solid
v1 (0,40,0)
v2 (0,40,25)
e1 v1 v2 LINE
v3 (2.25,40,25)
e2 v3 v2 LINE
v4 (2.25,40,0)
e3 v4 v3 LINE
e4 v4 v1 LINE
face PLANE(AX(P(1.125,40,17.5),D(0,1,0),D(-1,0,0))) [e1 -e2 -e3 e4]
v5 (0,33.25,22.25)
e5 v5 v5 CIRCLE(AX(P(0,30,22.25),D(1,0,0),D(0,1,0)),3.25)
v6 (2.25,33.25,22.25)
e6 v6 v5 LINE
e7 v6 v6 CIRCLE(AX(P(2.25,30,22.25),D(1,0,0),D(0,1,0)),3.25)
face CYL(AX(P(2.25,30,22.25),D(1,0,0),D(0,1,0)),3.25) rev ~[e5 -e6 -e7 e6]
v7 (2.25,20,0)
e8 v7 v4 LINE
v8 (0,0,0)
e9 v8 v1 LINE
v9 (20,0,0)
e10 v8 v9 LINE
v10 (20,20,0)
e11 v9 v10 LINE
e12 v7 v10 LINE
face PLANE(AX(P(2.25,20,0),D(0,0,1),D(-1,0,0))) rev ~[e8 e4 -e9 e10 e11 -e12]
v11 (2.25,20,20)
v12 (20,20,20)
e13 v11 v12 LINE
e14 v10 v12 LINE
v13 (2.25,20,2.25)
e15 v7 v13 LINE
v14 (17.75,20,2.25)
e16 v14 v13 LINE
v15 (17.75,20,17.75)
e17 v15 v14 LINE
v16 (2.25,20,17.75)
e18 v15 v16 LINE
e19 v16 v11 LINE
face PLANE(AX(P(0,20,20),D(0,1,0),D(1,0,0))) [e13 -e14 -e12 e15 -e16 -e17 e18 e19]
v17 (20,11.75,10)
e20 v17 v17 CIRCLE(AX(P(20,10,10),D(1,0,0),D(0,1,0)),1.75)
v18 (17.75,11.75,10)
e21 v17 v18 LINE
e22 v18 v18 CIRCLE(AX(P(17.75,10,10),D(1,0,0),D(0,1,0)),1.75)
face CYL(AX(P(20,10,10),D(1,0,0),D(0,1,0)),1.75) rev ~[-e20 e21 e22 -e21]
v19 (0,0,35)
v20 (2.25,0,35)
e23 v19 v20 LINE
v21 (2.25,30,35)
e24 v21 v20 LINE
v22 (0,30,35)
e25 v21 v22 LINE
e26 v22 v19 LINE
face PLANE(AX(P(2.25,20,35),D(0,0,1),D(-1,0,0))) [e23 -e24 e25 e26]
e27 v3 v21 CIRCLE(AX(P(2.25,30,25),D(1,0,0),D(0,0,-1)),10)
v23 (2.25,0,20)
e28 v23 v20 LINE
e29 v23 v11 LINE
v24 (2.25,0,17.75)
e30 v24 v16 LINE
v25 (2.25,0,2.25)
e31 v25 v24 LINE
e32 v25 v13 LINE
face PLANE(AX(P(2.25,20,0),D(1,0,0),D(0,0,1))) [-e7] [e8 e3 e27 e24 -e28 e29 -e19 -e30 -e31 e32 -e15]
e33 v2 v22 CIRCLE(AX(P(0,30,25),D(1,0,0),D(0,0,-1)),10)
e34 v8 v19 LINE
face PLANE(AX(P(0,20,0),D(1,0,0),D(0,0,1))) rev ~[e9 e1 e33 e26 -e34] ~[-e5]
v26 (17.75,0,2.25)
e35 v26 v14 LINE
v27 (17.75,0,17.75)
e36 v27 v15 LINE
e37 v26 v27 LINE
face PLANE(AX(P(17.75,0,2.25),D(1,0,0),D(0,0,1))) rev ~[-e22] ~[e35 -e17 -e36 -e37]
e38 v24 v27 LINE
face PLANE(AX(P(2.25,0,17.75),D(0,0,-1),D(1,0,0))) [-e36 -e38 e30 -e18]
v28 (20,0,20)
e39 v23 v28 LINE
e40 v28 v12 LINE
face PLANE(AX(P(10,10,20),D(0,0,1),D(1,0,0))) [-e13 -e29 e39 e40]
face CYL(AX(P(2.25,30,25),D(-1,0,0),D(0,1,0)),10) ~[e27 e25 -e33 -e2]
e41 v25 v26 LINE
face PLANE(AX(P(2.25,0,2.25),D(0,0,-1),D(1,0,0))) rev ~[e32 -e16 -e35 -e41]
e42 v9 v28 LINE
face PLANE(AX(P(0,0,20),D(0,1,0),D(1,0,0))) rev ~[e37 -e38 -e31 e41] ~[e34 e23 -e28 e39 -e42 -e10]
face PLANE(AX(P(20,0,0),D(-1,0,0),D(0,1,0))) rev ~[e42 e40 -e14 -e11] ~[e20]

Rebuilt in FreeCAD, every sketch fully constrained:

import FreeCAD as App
import Part
import Sketcher

V = App.Vector
Q = App.Units.Quantity


def edges_at(feature, points):
    """Names of the edges that pass closest to the given points."""
    edges = feature.Shape.Edges
    near = lambda p: min(range(len(edges)), key=lambda i: edges[i].distToShape(Part.Vertex(*p))[0])
    return sorted({f"Edge{near(p) + 1}" for p in points})


def add_polygon(sketch, points):
    """Adds a closed chain of lines whose ends are joined by coincident constraints."""
    first, n = sketch.GeometryCount, len(points)
    for a, b in zip(points, points[1:] + points[:1]):
        sketch.addGeometry(Part.LineSegment(App.Vector(*a, 0), App.Vector(*b, 0)), False)
    for i in range(n):
        sketch.addConstraint(Sketcher.Constraint("Coincident", first + i, 2, first + (i + 1) % n, 1))

doc = App.newDocument("Part")
body = doc.addObject("PartDesign::Body", "Body")

sketch1 = body.newObject("Sketcher::SketchObject", "Sketch")
sketch1.AttachmentSupport = (doc.getObject("XY_Plane"), [""])
sketch1.MapMode = "FlatFace"
add_polygon(sketch1, [(0, 20), (0, 0), (20, 0), (20, 20)])
sketch1.addConstraint([
    Sketcher.Constraint("Vertical", 0),
    Sketcher.Constraint("Horizontal", 1),
    Sketcher.Constraint("Vertical", 2),
    Sketcher.Constraint("Horizontal", 3),
    Sketcher.Constraint("Coincident", 0, 2, -1, 1),
    Sketcher.Constraint("Equal", 3, 0),
    Sketcher.Constraint("DistanceX", 1, 1, 1, 2, Q("20 mm")),
])
pad1 = body.newObject("PartDesign::Pad", "Pad")
pad1.Profile = sketch1
pad1.Length = 20

sketch2 = body.newObject("Sketcher::SketchObject", "Sketch001")
sketch2.AttachmentSupport = (doc.getObject("XZ_Plane"), [""])
sketch2.MapMode = "FlatFace"
add_polygon(sketch2, [(2.25, 17.75), (2.25, 2.25), (17.75, 2.25), (17.75, 17.75)])
sketch2.addConstraint([
    Sketcher.Constraint("Vertical", 0),
    Sketcher.Constraint("Horizontal", 1),
    Sketcher.Constraint("Vertical", 2),
    Sketcher.Constraint("Horizontal", 3),
    Sketcher.Constraint("Equal", 3, 0),
    Sketcher.Constraint("DistanceX", 1, 1, 1, 2, Q("15.5 mm")),
    Sketcher.Constraint("DistanceX", -1, 1, 0, 2, Q("2.25 mm")),
    Sketcher.Constraint("DistanceY", -1, 1, 0, 2, Q("2.25 mm")),
])
pocket1 = body.newObject("PartDesign::Pocket", "Pocket")
pocket1.Profile = sketch2
pocket1.Type = "ThroughAll"
pocket1.Midplane = True

sketch3 = body.newObject("Sketcher::SketchObject", "Sketch002")
sketch3.AttachmentSupport = (doc.getObject("XY_Plane"), [""])
sketch3.MapMode = "FlatFace"
sketch3.AttachmentOffset = App.Placement(V(0, 0, 20), App.Rotation())
add_polygon(sketch3, [(0, 20), (0, 0), (2.25, 0), (2.25, 20)])
sketch3.addConstraint([
    Sketcher.Constraint("Vertical", 0),
    Sketcher.Constraint("Horizontal", 1),
    Sketcher.Constraint("Vertical", 2),
    Sketcher.Constraint("Horizontal", 3),
    Sketcher.Constraint("Coincident", 0, 2, -1, 1),
    Sketcher.Constraint("DistanceY", 0, 2, 0, 1, Q("20 mm")),
    Sketcher.Constraint("DistanceX", 1, 1, 1, 2, Q("2.25 mm")),
])
pad2 = body.newObject("PartDesign::Pad", "Pad001")
pad2.Profile = sketch3
pad2.Length = 15

sketch4 = body.newObject("Sketcher::SketchObject", "Sketch003")
sketch4.AttachmentSupport = (doc.getObject("XZ_Plane"), [""])
sketch4.MapMode = "FlatFace"
sketch4.AttachmentOffset = App.Placement(V(0, 0, -20), App.Rotation())
add_polygon(sketch4, [(2.25, 35), (2.25, 0), (0, 0), (0, 35)])
sketch4.addConstraint([
    Sketcher.Constraint("Vertical", 0),
    Sketcher.Constraint("Horizontal", 1),
    Sketcher.Constraint("Vertical", 2),
    Sketcher.Constraint("Horizontal", 3),
    Sketcher.Constraint("Coincident", 1, 2, -1, 1),
    Sketcher.Constraint("DistanceY", 0, 2, 0, 1, Q("35 mm")),
    Sketcher.Constraint("DistanceX", 1, 2, 1, 1, Q("2.25 mm")),
])
pad3 = body.newObject("PartDesign::Pad", "Pad002")
pad3.Profile = sketch4
pad3.Length = 20
pad3.Reversed = True

sketch5 = body.newObject("Sketcher::SketchObject", "Sketch004")
sketch5.AttachmentSupport = (doc.getObject("YZ_Plane"), [""])
sketch5.MapMode = "FlatFace"
sketch5.AttachmentOffset = App.Placement(V(0, 0, 2.25), App.Rotation())
sketch5.addGeometry(Part.Circle(V(30, 22.25, 0), V(0, 0, 1), 3.25), False)
sketch5.addConstraint([
    Sketcher.Constraint("Diameter", 0, Q("6.5 mm")),
    Sketcher.Constraint("DistanceX", -1, 1, 0, 3, Q("30 mm")),
    Sketcher.Constraint("DistanceY", -1, 1, 0, 3, Q("22.25 mm")),
])
pocket2 = body.newObject("PartDesign::Pocket", "Pocket001")
pocket2.Profile = sketch5
pocket2.Length = 25
pocket3 = body.newObject("PartDesign::Pocket", "Pocket002")
pocket3.Profile = sketch5
pocket3.Length = 25

sketch6 = body.newObject("Sketcher::SketchObject", "Sketch005")
sketch6.AttachmentSupport = (doc.getObject("YZ_Plane"), [""])
sketch6.MapMode = "FlatFace"
sketch6.AttachmentOffset = App.Placement(V(0, 0, 20), App.Rotation())
sketch6.addGeometry(Part.Circle(V(10, 10, 0), V(0, 0, 1), 1.75), False)
sketch6.addConstraint([
    Sketcher.Constraint("Diameter", 0, Q("3.5 mm")),
    Sketcher.Constraint("DistanceX", -1, 1, 0, 3, Q("10 mm")),
    Sketcher.Constraint("DistanceY", -1, 1, 0, 3, Q("10 mm")),
])
pocket4 = body.newObject("PartDesign::Pocket", "Pocket003")
pocket4.Profile = sketch6
pocket4.Length = 5
doc.recompute()

fillet = body.newObject("PartDesign::Fillet", "Fillet")
fillet.Base = (pocket4, edges_at(pocket4, [(1.125, 40, 35)]))
fillet.Radius = 10

doc.recompute()
